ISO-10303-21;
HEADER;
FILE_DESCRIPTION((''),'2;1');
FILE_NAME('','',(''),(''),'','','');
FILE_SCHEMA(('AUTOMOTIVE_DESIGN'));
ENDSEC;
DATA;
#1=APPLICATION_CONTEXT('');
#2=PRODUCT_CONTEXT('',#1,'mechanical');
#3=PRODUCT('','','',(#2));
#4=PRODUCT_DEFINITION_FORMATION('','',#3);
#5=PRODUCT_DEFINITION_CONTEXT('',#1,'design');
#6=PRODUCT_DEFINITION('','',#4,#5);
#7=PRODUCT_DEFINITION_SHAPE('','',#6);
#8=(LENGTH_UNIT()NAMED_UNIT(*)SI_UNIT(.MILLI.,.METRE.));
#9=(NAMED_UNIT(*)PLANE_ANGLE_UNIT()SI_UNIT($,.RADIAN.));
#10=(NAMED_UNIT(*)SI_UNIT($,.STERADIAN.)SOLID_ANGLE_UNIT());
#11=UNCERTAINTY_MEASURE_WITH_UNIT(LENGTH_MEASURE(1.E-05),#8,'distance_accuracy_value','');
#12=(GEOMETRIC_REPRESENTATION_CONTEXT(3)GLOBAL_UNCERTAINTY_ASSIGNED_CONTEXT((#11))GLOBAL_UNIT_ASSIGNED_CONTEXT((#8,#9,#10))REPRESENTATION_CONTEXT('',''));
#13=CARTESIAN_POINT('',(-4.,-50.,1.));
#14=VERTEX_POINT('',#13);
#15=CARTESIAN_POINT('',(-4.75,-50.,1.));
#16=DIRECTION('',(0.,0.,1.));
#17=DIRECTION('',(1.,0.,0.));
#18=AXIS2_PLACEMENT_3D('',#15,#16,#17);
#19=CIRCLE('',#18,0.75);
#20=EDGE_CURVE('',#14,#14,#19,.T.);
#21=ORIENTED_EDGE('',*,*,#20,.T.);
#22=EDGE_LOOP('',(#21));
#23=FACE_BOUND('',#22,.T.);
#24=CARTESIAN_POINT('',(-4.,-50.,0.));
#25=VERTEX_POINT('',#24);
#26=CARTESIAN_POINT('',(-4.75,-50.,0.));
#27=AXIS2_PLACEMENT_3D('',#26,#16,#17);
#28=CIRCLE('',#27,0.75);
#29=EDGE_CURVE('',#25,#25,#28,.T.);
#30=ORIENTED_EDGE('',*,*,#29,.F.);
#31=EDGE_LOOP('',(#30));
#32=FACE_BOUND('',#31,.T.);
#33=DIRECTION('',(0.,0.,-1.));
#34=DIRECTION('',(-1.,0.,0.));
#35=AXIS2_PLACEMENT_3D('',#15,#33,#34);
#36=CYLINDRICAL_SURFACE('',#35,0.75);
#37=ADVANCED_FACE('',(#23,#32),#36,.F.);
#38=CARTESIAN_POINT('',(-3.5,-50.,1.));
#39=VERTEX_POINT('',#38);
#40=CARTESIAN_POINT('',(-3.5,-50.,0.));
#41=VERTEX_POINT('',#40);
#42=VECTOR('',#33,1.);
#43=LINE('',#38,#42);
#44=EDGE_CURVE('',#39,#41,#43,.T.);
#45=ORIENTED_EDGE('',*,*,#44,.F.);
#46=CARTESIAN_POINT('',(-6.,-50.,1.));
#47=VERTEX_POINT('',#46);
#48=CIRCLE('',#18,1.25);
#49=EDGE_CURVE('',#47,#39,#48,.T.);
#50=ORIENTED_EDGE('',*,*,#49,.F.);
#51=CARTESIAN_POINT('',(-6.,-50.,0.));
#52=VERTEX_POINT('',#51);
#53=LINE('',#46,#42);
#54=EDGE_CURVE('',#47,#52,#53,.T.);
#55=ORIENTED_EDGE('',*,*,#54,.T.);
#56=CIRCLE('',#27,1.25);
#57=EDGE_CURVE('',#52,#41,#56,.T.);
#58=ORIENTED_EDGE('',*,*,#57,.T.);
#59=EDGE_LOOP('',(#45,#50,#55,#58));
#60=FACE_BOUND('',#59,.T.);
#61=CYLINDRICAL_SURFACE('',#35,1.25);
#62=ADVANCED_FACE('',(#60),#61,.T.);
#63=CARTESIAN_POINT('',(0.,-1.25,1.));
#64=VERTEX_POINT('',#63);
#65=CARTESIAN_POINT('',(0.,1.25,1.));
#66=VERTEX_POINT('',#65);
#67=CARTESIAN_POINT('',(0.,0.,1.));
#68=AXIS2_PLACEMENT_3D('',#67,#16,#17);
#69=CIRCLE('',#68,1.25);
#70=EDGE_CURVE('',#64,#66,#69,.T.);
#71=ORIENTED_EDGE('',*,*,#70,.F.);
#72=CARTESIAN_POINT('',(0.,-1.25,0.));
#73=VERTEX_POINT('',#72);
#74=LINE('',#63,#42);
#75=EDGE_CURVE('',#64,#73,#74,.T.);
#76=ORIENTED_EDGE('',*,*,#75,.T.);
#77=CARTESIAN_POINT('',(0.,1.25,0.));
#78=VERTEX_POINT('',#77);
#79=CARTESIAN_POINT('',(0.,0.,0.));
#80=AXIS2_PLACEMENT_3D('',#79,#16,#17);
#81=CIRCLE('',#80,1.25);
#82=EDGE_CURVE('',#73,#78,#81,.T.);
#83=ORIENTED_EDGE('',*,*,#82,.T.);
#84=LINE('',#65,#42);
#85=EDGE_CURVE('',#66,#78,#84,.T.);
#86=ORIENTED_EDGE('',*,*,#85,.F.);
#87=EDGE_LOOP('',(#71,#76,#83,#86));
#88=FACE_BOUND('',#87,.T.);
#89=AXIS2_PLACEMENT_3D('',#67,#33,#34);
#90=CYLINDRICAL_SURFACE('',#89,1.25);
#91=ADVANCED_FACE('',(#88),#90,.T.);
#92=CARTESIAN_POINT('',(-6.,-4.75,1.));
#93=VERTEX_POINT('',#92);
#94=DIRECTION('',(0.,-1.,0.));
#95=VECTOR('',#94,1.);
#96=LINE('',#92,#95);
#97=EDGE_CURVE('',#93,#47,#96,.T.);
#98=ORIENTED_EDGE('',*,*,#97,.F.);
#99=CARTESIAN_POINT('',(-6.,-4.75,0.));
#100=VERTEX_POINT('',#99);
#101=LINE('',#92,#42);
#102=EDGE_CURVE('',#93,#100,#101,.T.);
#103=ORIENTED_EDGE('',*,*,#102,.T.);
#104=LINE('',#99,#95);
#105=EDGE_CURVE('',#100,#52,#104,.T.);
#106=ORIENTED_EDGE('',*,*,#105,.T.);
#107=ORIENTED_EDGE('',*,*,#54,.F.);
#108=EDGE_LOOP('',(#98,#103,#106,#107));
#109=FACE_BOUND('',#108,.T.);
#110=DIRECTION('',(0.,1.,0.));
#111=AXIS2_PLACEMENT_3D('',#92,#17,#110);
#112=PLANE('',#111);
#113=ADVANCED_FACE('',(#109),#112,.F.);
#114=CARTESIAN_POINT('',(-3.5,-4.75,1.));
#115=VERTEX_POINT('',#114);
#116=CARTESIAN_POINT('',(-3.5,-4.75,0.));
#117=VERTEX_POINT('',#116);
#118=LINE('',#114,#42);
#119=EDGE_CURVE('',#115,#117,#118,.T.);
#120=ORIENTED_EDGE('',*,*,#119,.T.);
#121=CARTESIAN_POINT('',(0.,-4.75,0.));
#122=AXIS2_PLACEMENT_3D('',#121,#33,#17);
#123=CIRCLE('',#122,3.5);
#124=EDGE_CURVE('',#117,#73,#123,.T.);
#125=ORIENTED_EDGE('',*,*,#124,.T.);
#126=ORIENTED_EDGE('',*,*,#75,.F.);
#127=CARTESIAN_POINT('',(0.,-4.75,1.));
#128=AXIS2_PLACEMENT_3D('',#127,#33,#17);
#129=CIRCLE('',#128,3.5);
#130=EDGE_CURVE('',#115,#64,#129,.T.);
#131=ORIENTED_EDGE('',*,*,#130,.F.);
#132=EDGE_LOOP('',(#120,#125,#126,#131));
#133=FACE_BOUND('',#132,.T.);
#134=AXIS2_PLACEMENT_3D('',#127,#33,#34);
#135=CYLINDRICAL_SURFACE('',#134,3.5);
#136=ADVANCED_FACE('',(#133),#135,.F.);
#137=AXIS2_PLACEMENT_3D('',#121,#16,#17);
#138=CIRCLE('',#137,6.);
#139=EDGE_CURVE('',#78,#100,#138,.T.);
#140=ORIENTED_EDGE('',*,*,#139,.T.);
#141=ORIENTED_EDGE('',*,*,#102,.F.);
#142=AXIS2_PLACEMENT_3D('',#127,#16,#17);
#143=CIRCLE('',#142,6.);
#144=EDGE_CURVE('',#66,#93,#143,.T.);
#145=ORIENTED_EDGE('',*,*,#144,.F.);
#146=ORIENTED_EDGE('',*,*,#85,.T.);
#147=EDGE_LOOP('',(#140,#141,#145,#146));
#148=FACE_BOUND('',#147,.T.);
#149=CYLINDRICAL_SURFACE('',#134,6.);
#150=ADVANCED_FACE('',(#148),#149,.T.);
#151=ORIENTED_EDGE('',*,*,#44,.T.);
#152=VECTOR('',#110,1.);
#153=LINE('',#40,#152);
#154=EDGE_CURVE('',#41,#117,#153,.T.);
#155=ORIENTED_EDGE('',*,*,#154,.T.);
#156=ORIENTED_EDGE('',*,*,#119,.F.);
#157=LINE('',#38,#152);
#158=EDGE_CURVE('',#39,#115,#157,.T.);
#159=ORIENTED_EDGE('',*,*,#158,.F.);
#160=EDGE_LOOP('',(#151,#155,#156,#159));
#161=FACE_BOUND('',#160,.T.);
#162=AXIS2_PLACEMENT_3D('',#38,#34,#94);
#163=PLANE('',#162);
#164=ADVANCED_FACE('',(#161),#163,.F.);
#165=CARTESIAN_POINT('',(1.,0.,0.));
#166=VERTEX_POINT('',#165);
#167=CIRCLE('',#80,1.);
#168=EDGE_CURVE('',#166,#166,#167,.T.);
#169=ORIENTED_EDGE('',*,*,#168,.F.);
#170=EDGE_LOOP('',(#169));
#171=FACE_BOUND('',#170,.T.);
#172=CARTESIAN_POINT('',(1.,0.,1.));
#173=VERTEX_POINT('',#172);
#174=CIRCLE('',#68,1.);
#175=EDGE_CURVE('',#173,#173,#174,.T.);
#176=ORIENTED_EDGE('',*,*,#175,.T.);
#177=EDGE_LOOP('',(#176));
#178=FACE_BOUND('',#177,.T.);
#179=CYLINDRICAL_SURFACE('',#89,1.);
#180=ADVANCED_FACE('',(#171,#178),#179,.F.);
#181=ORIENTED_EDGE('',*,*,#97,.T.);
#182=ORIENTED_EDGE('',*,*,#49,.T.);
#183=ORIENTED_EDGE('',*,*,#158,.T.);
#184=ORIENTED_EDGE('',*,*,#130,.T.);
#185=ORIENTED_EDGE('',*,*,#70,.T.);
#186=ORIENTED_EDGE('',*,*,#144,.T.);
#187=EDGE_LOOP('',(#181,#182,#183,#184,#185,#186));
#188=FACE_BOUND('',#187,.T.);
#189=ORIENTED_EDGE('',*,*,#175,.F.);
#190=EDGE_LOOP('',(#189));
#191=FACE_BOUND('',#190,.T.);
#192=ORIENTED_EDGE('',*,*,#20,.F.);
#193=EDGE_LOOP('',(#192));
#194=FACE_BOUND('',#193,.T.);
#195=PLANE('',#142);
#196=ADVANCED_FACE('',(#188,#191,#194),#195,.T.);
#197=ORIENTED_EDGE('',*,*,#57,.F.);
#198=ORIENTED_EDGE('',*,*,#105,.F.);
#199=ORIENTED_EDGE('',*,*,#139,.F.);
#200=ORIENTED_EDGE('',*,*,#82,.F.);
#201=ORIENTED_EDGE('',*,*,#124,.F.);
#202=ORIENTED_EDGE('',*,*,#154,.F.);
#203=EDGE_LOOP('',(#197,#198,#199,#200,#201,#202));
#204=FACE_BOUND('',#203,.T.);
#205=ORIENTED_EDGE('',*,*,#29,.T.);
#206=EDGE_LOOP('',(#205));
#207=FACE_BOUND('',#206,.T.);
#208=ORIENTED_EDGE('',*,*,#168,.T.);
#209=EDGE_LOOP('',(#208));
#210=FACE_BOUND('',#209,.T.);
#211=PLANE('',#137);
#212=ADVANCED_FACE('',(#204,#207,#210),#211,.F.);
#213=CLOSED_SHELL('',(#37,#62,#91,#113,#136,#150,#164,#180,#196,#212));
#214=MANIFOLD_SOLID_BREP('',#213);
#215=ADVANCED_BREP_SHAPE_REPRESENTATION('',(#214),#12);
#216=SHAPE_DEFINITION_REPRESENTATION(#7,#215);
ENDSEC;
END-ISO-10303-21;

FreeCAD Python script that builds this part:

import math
import FreeCAD as App
import Part
import Sketcher
Q = App.Units.Quantity

doc = App.newDocument("Part")
params = doc.addObject("Spreadsheet::Sheet", "Params")
for row, (alias, value) in enumerate([
    ("sketch1_diameter", "2 mm"),
    ("sketch1_radius", "6 mm"),
    ("sketch1_diameter2", "1.5 mm"),
    ("sketch1_radius2", "3.5 mm"),
    ("pad1_length", "1 mm"),
], start=1):
    params.set(f"A{row}", alias)
    params.set(f"B{row}", "=" + value)
    params.setAlias(f"B{row}", alias)

body = doc.addObject("PartDesign::Body", "Body")

sketch1 = doc.addObject("Sketcher::SketchObject", "Sketch")
body.addObject(sketch1)
sketch1.AttachmentSupport = (doc.XY_Plane, [""])
sketch1.MapMode = "FlatFace"
sketch1.addGeometry([
    Part.LineSegment(App.Vector(-6, -4.8, 0), App.Vector(-6, -50, 0)),
    Part.ArcOfCircle(Part.Circle(App.Vector(-4.8, -50, 0), App.Vector(0, 0, 1), 1.2), math.radians(180), math.radians(360)),
    Part.LineSegment(App.Vector(-3.5, -50, 0), App.Vector(-3.5, -4.8, 0)),
    Part.ArcOfCircle(Part.Circle(App.Vector(0, -4.8, 0), App.Vector(0, 0, 1), 3.5), math.radians(90), math.radians(180)),
    Part.ArcOfCircle(Part.Circle(App.Vector(0, 0, 0), App.Vector(0, 0, 1), 1.2), math.radians(-90), math.radians(90)),
    Part.ArcOfCircle(Part.Circle(App.Vector(0, -4.8, 0), App.Vector(0, 0, 1), 6), math.radians(90), math.radians(180)),
    Part.Circle(App.Vector(-4.8, -50, 0), App.Vector(0, 0, 1), 0.8),
    Part.Circle(App.Vector(0, 0, 0), App.Vector(0, 0, 1), 1),
], False)
sketch1.addConstraint([
    Sketcher.Constraint("Tangent", 0, 2, 1, 1),
    Sketcher.Constraint("Tangent", 1, 2, 2, 1),
    Sketcher.Constraint("Tangent", 2, 2, 3, 2),
    Sketcher.Constraint("Tangent", 3, 1, 4, 1),
    Sketcher.Constraint("Tangent", 4, 2, 5, 1),
    Sketcher.Constraint("Tangent", 5, 2, 0, 1),
    Sketcher.Constraint("Vertical", 0),
    Sketcher.Constraint("Vertical", 2),
    Sketcher.Constraint("Coincident", 4, 3, -1, 1),
    Sketcher.Constraint("Coincident", 7, 3, -1, 1),
    Sketcher.Constraint("Coincident", 5, 3, 3, 3),
    Sketcher.Constraint("Coincident", 6, 3, 1, 3),
    Sketcher.Constraint("PointOnObject", 3, 3, -2),
    Sketcher.Constraint("Diameter", 7, Q("2 mm")),
    Sketcher.Constraint("Radius", 5, Q("6 mm")),
    Sketcher.Constraint("Diameter", 6, Q("1.5 mm")),
    Sketcher.Constraint("Radius", 3, Q("3.5 mm")),
    Sketcher.Constraint("DistanceY", 1, 3, -1, 1, Q("50 mm")),
])
sketch1.setExpression("Constraints[13]", "Params.sketch1_diameter")
sketch1.setExpression("Constraints[14]", "Params.sketch1_radius")
sketch1.setExpression("Constraints[15]", "Params.sketch1_diameter2")
sketch1.setExpression("Constraints[16]", "Params.sketch1_radius2")
pad1 = doc.addObject("PartDesign::Pad", "Pad")
body.addObject(pad1)
pad1.Profile = sketch1
pad1.setExpression("Length", "Params.pad1_length")

doc.recompute()
